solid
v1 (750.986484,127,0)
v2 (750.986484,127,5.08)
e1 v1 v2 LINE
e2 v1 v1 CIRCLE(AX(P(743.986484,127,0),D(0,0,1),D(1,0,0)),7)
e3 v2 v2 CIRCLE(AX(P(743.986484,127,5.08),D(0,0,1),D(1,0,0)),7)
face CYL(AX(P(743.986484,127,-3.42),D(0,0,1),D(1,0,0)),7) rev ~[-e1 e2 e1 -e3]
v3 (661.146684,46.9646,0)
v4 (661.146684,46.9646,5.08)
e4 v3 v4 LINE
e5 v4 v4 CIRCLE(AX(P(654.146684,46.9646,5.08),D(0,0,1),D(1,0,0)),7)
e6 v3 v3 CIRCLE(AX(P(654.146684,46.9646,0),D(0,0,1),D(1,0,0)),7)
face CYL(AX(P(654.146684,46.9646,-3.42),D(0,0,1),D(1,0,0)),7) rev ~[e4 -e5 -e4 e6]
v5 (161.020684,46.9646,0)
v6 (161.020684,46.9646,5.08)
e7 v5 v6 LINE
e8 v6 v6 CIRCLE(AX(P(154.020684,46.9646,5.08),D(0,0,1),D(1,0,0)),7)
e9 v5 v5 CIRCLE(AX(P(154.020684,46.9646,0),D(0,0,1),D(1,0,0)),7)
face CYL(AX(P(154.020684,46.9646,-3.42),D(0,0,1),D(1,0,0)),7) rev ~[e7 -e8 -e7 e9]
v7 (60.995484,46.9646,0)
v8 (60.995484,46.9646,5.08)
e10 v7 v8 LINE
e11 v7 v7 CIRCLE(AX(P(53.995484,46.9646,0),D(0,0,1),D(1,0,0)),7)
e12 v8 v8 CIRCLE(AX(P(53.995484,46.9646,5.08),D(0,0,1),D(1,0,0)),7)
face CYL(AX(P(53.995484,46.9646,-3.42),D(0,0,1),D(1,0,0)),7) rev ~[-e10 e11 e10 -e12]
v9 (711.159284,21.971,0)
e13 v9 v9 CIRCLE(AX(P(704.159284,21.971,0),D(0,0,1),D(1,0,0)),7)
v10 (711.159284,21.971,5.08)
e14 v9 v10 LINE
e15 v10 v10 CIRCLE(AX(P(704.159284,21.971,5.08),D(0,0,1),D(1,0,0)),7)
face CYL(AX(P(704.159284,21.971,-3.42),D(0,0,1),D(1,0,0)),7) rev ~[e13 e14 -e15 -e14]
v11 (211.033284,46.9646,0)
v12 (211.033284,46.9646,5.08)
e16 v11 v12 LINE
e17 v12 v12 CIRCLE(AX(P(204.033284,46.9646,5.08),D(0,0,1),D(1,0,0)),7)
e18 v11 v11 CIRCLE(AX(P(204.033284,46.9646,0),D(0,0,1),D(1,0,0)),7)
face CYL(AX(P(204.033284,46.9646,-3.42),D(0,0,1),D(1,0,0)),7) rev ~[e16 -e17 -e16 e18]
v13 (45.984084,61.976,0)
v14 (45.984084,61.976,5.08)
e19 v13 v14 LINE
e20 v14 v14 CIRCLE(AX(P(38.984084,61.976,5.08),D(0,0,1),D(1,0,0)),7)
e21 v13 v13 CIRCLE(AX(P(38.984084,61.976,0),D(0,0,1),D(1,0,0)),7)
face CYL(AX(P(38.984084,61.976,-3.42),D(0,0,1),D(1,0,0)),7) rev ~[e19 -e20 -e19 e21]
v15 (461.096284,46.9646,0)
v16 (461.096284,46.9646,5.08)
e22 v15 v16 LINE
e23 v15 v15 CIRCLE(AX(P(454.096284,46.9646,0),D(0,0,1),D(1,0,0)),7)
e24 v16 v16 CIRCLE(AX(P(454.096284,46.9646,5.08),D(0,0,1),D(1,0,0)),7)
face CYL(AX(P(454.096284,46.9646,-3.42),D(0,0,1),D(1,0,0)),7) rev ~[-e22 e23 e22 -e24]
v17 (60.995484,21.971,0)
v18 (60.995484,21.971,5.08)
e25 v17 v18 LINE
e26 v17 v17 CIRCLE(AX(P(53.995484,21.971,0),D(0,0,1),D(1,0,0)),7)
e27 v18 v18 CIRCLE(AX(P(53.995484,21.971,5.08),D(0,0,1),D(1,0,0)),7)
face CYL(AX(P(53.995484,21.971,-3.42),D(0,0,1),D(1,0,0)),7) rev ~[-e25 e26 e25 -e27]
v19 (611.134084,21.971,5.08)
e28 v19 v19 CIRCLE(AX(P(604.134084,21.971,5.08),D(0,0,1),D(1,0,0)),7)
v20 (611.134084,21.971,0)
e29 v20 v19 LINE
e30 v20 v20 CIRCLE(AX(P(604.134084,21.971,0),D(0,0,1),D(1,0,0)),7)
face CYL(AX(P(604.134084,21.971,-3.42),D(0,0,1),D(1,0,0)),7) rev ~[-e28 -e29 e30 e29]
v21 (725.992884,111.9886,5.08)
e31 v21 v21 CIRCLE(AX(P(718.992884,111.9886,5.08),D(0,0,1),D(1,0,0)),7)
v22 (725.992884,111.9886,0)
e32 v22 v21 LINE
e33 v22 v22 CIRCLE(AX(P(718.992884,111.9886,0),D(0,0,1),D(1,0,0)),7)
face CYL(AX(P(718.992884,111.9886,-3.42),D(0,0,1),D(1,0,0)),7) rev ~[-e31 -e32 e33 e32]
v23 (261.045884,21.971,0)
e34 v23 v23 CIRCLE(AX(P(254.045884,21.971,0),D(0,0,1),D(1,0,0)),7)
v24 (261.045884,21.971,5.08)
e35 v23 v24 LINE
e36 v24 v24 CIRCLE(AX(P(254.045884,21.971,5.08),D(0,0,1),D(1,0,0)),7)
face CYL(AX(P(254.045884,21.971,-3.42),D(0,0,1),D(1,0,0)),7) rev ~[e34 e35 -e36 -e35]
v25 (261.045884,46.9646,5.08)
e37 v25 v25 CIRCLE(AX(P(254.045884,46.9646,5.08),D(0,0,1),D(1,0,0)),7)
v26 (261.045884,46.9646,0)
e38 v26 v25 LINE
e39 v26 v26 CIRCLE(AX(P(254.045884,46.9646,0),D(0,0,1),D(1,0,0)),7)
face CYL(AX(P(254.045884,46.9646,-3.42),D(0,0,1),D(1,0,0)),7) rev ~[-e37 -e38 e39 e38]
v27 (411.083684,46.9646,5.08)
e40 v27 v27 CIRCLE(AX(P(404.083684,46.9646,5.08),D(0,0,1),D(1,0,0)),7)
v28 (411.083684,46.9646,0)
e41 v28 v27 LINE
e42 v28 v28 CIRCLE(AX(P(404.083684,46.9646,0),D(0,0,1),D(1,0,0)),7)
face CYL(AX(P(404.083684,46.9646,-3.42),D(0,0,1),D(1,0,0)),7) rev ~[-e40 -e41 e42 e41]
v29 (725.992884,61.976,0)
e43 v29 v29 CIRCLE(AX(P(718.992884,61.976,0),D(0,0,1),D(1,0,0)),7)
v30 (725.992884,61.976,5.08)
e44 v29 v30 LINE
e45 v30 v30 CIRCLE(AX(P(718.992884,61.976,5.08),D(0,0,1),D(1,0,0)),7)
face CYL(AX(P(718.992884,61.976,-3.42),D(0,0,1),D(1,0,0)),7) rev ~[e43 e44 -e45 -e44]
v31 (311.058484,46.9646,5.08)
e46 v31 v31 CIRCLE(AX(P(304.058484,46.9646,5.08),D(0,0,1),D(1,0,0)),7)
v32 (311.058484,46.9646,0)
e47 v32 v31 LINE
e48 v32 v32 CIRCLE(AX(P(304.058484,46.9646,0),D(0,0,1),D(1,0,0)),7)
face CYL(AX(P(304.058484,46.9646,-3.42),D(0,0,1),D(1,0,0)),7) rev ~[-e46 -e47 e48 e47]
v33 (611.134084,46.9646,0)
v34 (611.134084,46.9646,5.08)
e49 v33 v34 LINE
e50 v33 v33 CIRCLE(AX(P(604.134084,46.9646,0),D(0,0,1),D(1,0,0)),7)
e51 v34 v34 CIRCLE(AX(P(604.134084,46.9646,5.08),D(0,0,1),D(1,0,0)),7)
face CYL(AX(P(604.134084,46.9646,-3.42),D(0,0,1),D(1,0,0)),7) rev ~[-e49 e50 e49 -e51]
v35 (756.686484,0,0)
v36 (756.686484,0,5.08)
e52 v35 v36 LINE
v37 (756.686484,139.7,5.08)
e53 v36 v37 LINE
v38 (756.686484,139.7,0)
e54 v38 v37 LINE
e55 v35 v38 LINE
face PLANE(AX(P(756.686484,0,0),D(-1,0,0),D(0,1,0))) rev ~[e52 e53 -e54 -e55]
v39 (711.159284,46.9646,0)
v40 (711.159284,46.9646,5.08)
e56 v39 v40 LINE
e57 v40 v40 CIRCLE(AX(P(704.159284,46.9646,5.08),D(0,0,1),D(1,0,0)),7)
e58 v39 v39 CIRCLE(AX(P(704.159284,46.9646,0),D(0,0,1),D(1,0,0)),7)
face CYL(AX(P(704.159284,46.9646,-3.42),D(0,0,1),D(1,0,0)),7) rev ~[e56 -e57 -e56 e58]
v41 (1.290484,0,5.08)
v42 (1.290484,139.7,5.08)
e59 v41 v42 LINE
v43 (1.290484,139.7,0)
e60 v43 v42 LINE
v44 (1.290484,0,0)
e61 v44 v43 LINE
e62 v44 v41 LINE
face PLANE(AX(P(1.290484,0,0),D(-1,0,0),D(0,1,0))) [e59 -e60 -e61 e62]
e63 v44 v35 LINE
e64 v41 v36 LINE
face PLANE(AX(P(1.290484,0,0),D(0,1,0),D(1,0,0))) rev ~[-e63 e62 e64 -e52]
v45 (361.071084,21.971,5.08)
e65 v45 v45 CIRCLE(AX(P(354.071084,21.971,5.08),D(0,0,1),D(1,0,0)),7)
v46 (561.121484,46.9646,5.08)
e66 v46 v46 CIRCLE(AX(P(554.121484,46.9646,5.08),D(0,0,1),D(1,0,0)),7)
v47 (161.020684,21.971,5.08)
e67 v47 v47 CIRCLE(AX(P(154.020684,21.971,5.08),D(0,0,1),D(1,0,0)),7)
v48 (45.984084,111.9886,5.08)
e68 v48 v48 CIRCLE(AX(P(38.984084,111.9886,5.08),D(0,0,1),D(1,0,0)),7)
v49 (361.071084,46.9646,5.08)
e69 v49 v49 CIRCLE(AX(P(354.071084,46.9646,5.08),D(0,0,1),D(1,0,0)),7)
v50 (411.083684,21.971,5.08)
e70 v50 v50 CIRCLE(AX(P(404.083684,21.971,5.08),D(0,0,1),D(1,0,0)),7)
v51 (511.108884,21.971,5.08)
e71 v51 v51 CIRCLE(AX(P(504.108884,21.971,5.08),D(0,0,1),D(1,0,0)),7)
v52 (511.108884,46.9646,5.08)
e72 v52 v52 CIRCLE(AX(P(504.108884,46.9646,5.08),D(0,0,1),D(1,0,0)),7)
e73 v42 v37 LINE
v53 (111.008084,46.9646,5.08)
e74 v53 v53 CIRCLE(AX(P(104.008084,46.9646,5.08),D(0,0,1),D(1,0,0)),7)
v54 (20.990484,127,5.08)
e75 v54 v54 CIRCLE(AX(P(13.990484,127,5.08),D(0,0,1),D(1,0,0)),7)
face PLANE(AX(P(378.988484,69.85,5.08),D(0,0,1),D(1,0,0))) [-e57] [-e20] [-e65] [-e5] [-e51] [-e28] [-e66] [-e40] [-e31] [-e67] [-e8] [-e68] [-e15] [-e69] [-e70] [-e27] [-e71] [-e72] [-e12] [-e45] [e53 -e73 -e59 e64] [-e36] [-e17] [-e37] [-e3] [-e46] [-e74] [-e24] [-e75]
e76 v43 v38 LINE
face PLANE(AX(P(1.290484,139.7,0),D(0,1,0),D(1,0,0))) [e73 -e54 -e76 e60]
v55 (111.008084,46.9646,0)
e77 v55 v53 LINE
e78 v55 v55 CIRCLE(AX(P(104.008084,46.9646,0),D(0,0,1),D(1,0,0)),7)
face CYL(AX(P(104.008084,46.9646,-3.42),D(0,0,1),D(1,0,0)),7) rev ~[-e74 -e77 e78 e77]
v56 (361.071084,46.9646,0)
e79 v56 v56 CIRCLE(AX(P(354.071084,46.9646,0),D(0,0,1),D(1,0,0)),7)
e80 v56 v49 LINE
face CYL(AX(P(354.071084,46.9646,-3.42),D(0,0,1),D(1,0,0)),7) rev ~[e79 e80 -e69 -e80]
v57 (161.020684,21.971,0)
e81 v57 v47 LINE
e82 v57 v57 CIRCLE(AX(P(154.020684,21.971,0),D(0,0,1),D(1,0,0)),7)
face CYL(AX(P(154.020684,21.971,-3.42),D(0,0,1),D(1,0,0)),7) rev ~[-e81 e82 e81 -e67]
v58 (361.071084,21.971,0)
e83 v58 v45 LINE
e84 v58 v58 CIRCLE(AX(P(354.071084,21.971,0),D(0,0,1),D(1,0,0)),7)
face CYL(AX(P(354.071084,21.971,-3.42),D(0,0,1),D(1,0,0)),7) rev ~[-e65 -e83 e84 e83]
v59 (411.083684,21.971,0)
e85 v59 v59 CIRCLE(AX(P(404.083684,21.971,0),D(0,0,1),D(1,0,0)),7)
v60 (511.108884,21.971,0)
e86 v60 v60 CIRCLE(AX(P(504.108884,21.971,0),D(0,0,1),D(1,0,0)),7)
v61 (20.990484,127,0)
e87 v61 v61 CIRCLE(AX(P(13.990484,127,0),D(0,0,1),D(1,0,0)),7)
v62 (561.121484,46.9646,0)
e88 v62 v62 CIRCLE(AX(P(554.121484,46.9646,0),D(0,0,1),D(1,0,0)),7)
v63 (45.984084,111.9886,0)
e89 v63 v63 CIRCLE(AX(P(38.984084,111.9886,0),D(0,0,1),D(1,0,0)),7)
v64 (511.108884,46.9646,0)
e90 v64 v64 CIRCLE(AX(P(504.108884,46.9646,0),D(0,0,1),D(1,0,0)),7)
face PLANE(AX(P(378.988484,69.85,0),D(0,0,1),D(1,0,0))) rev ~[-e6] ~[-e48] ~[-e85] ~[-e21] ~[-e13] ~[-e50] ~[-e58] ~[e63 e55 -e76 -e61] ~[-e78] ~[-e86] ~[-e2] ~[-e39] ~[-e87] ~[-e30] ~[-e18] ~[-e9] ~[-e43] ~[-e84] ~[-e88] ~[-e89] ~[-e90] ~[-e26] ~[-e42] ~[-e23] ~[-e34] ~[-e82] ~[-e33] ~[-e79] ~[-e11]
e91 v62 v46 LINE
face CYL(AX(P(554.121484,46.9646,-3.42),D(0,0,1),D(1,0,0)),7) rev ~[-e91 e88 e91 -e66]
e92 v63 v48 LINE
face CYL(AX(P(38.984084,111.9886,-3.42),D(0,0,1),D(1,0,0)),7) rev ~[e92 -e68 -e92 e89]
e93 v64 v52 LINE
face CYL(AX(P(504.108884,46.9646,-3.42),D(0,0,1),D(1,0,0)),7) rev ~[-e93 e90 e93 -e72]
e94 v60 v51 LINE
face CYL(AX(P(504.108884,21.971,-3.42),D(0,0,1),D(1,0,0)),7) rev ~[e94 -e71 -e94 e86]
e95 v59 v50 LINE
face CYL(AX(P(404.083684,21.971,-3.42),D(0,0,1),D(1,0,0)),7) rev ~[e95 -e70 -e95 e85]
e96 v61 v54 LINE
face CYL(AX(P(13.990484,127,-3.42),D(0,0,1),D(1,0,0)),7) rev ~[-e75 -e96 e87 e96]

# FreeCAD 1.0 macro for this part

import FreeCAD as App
import Part
import Sketcher
Q = App.Units.Quantity


def add_polygon(sketch, points):
    """Adds a closed chain of lines whose ends are joined by coincident constraints."""
    first, n = sketch.GeometryCount, len(points)
    for a, b in zip(points, points[1:] + points[:1]):
        sketch.addGeometry(Part.LineSegment(App.Vector(*a, 0), App.Vector(*b, 0)), False)
    for i in range(n):
        sketch.addConstraint(Sketcher.Constraint("Coincident", first + i, 2, first + (i + 1) % n, 1))

doc = App.newDocument("Part")
body = doc.addObject("PartDesign::Body", "Body")

# Sketch on XY plane
sketch1 = body.newObject("Sketcher::SketchObject", "Sketch")
sketch1.AttachmentSupport = (doc.getObject("XY_Plane"), [""])
sketch1.MapMode = "FlatFace"
add_polygon(sketch1, [(1.290484, 139.7), (1.290484, 0), (756.686484, 0), (756.686484, 139.7)])  # lines 0-3
sketch1.addConstraint(Sketcher.Constraint("Vertical", 0))
sketch1.addConstraint(Sketcher.Constraint("Horizontal", 1))
sketch1.addConstraint(Sketcher.Constraint("Vertical", 2))
sketch1.addConstraint(Sketcher.Constraint("Horizontal", 3))
sketch1.addConstraint(Sketcher.Constraint("PointOnObject", 0, 2, -1))
sketch1.addConstraint(Sketcher.Constraint("DistanceY", 0, 2, 0, 1, Q("5.5 in")))
sketch1.addConstraint(Sketcher.Constraint("DistanceX", 1, 1, 1, 2, Q("29.74 in")))
sketch1.addConstraint(Sketcher.Constraint("DistanceX", -1, 1, 0, 2, 1.290484))
pad1 = body.newObject("PartDesign::Pad", "Pad")
pad1.Profile = sketch1
pad1.Length = Q("0.2 in")

# Sketch on XY plane
sketch2 = body.newObject("Sketcher::SketchObject", "Sketch001")
sketch2.AttachmentSupport = (doc.getObject("XY_Plane"), [""])
sketch2.MapMode = "FlatFace"
sketch2.AttachmentOffset = App.Placement(App.Vector(0, 0, 0.2 * 25.4), App.Rotation())
sketch2.addGeometry(Part.Circle(App.Vector(13.990484, 127, 0), App.Vector(0, 0, 1), 4.25), False)
sketch2.addGeometry(Part.Circle(App.Vector(38.984084, 111.9886, 0), App.Vector(0, 0, 1), 4.25), False)
sketch2.addGeometry(Part.Circle(App.Vector(38.984084, 61.976, 0), App.Vector(0, 0, 1), 4.25), False)
sketch2.addGeometry(Part.Circle(App.Vector(53.995484, 46.9646, 0), App.Vector(0, 0, 1), 4.25), False)
sketch2.addGeometry(Part.Circle(App.Vector(53.995484, 21.971, 0), App.Vector(0, 0, 1), 4.25), False)
sketch2.addGeometry(Part.Circle(App.Vector(104.008084, 46.9646, 0), App.Vector(0, 0, 1), 4.25), False)
sketch2.addGeometry(Part.Circle(App.Vector(154.020684, 21.971, 0), App.Vector(0, 0, 1), 4.25), False)
sketch2.addGeometry(Part.Circle(App.Vector(154.020684, 46.9646, 0), App.Vector(0, 0, 1), 4.25), False)
sketch2.addGeometry(Part.Circle(App.Vector(204.033284, 46.9646, 0), App.Vector(0, 0, 1), 4.25), False)
sketch2.addGeometry(Part.Circle(App.Vector(254.045884, 21.971, 0), App.Vector(0, 0, 1), 4.25), False)
sketch2.addGeometry(Part.Circle(App.Vector(254.045884, 46.9646, 0), App.Vector(0, 0, 1), 4.25), False)
sketch2.addGeometry(Part.Circle(App.Vector(304.058484, 46.9646, 0), App.Vector(0, 0, 1), 4.25), False)
sketch2.addGeometry(Part.Circle(App.Vector(354.071084, 46.9646, 0), App.Vector(0, 0, 1), 4.25), False)
sketch2.addGeometry(Part.Circle(App.Vector(354.071084, 21.971, 0), App.Vector(0, 0, 1), 4.25), False)
sketch2.addGeometry(Part.Circle(App.Vector(404.083684, 21.971, 0), App.Vector(0, 0, 1), 4.25), False)
sketch2.addGeometry(Part.Circle(App.Vector(404.083684, 46.9646, 0), App.Vector(0, 0, 1), 4.25), False)
sketch2.addGeometry(Part.Circle(App.Vector(454.096284, 46.9646, 0), App.Vector(0, 0, 1), 4.25), False)
sketch2.addGeometry(Part.Circle(App.Vector(504.108884, 21.971, 0), App.Vector(0, 0, 1), 4.25), False)
sketch2.addGeometry(Part.Circle(App.Vector(504.108884, 46.9646, 0), App.Vector(0, 0, 1), 4.25), False)
sketch2.addGeometry(Part.Circle(App.Vector(554.121484, 46.9646, 0), App.Vector(0, 0, 1), 4.25), False)
sketch2.addGeometry(Part.Circle(App.Vector(604.134084, 46.9646, 0), App.Vector(0, 0, 1), 4.25), False)
sketch2.addGeometry(Part.Circle(App.Vector(604.134084, 21.971, 0), App.Vector(0, 0, 1), 4.25), False)
sketch2.addGeometry(Part.Circle(App.Vector(743.986484, 127, 0), App.Vector(0, 0, 1), 4.25), False)
sketch2.addGeometry(Part.Circle(App.Vector(718.992884, 111.9886, 0), App.Vector(0, 0, 1), 4.25), False)
sketch2.addGeometry(Part.Circle(App.Vector(718.992884, 61.976, 0), App.Vector(0, 0, 1), 4.25), False)
sketch2.addGeometry(Part.Circle(App.Vector(704.159284, 46.9646, 0), App.Vector(0, 0, 1), 4.25), False)
sketch2.addGeometry(Part.Circle(App.Vector(704.159284, 21.971, 0), App.Vector(0, 0, 1), 4.25), False)
sketch2.addGeometry(Part.Circle(App.Vector(654.146684, 46.9646, 0), App.Vector(0, 0, 1), 4.25), False)
sketch2.addConstraint(Sketcher.Constraint("Equal", 0, 1))
sketch2.addConstraint(Sketcher.Constraint("Equal", 1, 2))
sketch2.addConstraint(Sketcher.Constraint("Equal", 2, 3))
sketch2.addConstraint(Sketcher.Constraint("Equal", 3, 4))
sketch2.addConstraint(Sketcher.Constraint("Equal", 4, 5))
sketch2.addConstraint(Sketcher.Constraint("Equal", 5, 6))
sketch2.addConstraint(Sketcher.Constraint("Equal", 6, 7))
sketch2.addConstraint(Sketcher.Constraint("Equal", 7, 8))
sketch2.addConstraint(Sketcher.Constraint("Equal", 8, 9))
sketch2.addConstraint(Sketcher.Constraint("Equal", 9, 10))
sketch2.addConstraint(Sketcher.Constraint("Equal", 10, 11))
sketch2.addConstraint(Sketcher.Constraint("Equal", 11, 12))
sketch2.addConstraint(Sketcher.Constraint("Equal", 12, 13))
sketch2.addConstraint(Sketcher.Constraint("Equal", 13, 14))
sketch2.addConstraint(Sketcher.Constraint("Equal", 14, 15))
sketch2.addConstraint(Sketcher.Constraint("Equal", 15, 16))
sketch2.addConstraint(Sketcher.Constraint("Equal", 16, 17))
sketch2.addConstraint(Sketcher.Constraint("Equal", 17, 18))
sketch2.addConstraint(Sketcher.Constraint("Equal", 18, 19))
sketch2.addConstraint(Sketcher.Constraint("Equal", 19, 20))
sketch2.addConstraint(Sketcher.Constraint("Equal", 20, 21))
sketch2.addConstraint(Sketcher.Constraint("Equal", 21, 22))
sketch2.addConstraint(Sketcher.Constraint("Equal", 22, 23))
sketch2.addConstraint(Sketcher.Constraint("Equal", 23, 24))
sketch2.addConstraint(Sketcher.Constraint("Equal", 24, 25))
sketch2.addConstraint(Sketcher.Constraint("Equal", 25, 26))
sketch2.addConstraint(Sketcher.Constraint("Equal", 26, 27))
sketch2.addConstraint(Sketcher.Constraint("Horizontal", 3, 3, 5, 3))
sketch2.addConstraint(Sketcher.Constraint("Horizontal", 4, 3, 6, 3))
sketch2.addConstraint(Sketcher.Constraint("Horizontal", 5, 3, 7, 3))
sketch2.addConstraint(Sketcher.Constraint("Horizontal", 7, 3, 8, 3))
sketch2.addConstraint(Sketcher.Constraint("Horizontal", 6, 3, 9, 3))
sketch2.addConstraint(Sketcher.Constraint("Horizontal", 8, 3, 10, 3))
sketch2.addConstraint(Sketcher.Constraint("Horizontal", 10, 3, 11, 3))
sketch2.addConstraint(Sketcher.Constraint("Horizontal", 11, 3, 12, 3))
sketch2.addConstraint(Sketcher.Constraint("Horizontal", 9, 3, 13, 3))
sketch2.addConstraint(Sketcher.Constraint("Horizontal", 13, 3, 14, 3))
sketch2.addConstraint(Sketcher.Constraint("Horizontal", 12, 3, 15, 3))
sketch2.addConstraint(Sketcher.Constraint("Horizontal", 15, 3, 16, 3))
sketch2.addConstraint(Sketcher.Constraint("Horizontal", 14, 3, 17, 3))
sketch2.addConstraint(Sketcher.Constraint("Horizontal", 16, 3, 18, 3))
sketch2.addConstraint(Sketcher.Constraint("Horizontal", 18, 3, 19, 3))
sketch2.addConstraint(Sketcher.Constraint("Horizontal", 19, 3, 20, 3))
sketch2.addConstraint(Sketcher.Constraint("Horizontal", 17, 3, 21, 3))
sketch2.addConstraint(Sketcher.Constraint("Horizontal", 0, 3, 22, 3))
sketch2.addConstraint(Sketcher.Constraint("Horizontal", 1, 3, 23, 3))
sketch2.addConstraint(Sketcher.Constraint("Horizontal", 2, 3, 24, 3))
sketch2.addConstraint(Sketcher.Constraint("Horizontal", 20, 3, 25, 3))
sketch2.addConstraint(Sketcher.Constraint("Horizontal", 21, 3, 26, 3))
sketch2.addConstraint(Sketcher.Constraint("Horizontal", 25, 3, 27, 3))
sketch2.addConstraint(Sketcher.Constraint("Vertical", 1, 3, 2, 3))
sketch2.addConstraint(Sketcher.Constraint("Vertical", 3, 3, 4, 3))
sketch2.addConstraint(Sketcher.Constraint("Vertical", 6, 3, 7, 3))
sketch2.addConstraint(Sketcher.Constraint("Vertical", 9, 3, 10, 3))
sketch2.addConstraint(Sketcher.Constraint("Vertical", 12, 3, 13, 3))
sketch2.addConstraint(Sketcher.Constraint("Vertical", 14, 3, 15, 3))
sketch2.addConstraint(Sketcher.Constraint("Vertical", 17, 3, 18, 3))
sketch2.addConstraint(Sketcher.Constraint("Vertical", 20, 3, 21, 3))
sketch2.addConstraint(Sketcher.Constraint("Vertical", 23, 3, 24, 3))
sketch2.addConstraint(Sketcher.Constraint("Vertical", 25, 3, 26, 3))
sketch2.addConstraint(Sketcher.Constraint("DistanceY", -1, 1, 0, 3, Q("5 in")))
sketch2.addConstraint(Sketcher.Constraint("Diameter", 0, 8.5))
sketch2.addConstraint(Sketcher.Constraint("DistanceY", -1, 1, 2, 3, Q("2.44 in")))
sketch2.addConstraint(Sketcher.Constraint("DistanceY", 3, 3, 1, 3, Q("2.56 in")))
sketch2.addConstraint(Sketcher.Constraint("DistanceX", 2, 3, 5, 3, Q("2.56 in")))
sketch2.addConstraint(Sketcher.Constraint("DistanceX", 18, 3, 23, 3, Q("8.46 in")))
sketch2.addConstraint(Sketcher.Constraint("DistanceY", -1, 1, 1, 3, Q("4.409 in")))
sketch2.addConstraint(Sketcher.Constraint("DistanceY", -1, 1, 4, 3, Q("0.865 in")))
sketch2.addConstraint(Sketcher.Constraint("DistanceX", 0, 3, 1, 3, Q("0.984 in")))
sketch2.addConstraint(Sketcher.Constraint("DistanceX", 2, 3, 3, 3, Q("0.591 in")))
sketch2.addConstraint(Sketcher.Constraint("DistanceX", 5, 3, 6, 3, Q("1.969 in")))
sketch2.addConstraint(Sketcher.Constraint("DistanceX", 7, 3, 8, 3, Q("1.969 in")))
sketch2.addConstraint(Sketcher.Constraint("DistanceX", 8, 3, 9, 3, Q("1.969 in")))
sketch2.addConstraint(Sketcher.Constraint("DistanceX", 10, 3, 11, 3, Q("1.969 in")))
sketch2.addConstraint(Sketcher.Constraint("DistanceX", 11, 3, 12, 3, Q("1.969 in")))
sketch2.addConstraint(Sketcher.Constraint("DistanceX", 13, 3, 14, 3, Q("1.969 in")))
sketch2.addConstraint(Sketcher.Constraint("DistanceX", 15, 3, 16, 3, Q("1.969 in")))
sketch2.addConstraint(Sketcher.Constraint("DistanceX", 16, 3, 17, 3, Q("1.969 in")))
sketch2.addConstraint(Sketcher.Constraint("DistanceX", 18, 3, 19, 3, Q("1.969 in")))
sketch2.addConstraint(Sketcher.Constraint("DistanceX", 19, 3, 20, 3, Q("1.969 in")))
sketch2.addConstraint(Sketcher.Constraint("DistanceX", 20, 3, 22, 3, Q("5.506 in")))
sketch2.addConstraint(Sketcher.Constraint("DistanceX", 25, 3, 24, 3, Q("0.584 in")))
sketch2.addConstraint(Sketcher.Constraint("DistanceX", 27, 3, 25, 3, Q("1.969 in")))
sketch2.addConstraint(Sketcher.Constraint("DistanceX", -1, 1, 0, 3, 13.990484))
doc.recompute()
hole = body.newObject("PartDesign::Hole", "Hole")
hole.Profile = sketch2
hole.ThreadType = "None"
hole.Diameter = 8.5
hole.DepthType = "ThroughAll"
hole.HoleCutType = "Counterbore"
hole.HoleCutDiameter = 14
hole.HoleCutDepth = 8.5

doc.recompute()
